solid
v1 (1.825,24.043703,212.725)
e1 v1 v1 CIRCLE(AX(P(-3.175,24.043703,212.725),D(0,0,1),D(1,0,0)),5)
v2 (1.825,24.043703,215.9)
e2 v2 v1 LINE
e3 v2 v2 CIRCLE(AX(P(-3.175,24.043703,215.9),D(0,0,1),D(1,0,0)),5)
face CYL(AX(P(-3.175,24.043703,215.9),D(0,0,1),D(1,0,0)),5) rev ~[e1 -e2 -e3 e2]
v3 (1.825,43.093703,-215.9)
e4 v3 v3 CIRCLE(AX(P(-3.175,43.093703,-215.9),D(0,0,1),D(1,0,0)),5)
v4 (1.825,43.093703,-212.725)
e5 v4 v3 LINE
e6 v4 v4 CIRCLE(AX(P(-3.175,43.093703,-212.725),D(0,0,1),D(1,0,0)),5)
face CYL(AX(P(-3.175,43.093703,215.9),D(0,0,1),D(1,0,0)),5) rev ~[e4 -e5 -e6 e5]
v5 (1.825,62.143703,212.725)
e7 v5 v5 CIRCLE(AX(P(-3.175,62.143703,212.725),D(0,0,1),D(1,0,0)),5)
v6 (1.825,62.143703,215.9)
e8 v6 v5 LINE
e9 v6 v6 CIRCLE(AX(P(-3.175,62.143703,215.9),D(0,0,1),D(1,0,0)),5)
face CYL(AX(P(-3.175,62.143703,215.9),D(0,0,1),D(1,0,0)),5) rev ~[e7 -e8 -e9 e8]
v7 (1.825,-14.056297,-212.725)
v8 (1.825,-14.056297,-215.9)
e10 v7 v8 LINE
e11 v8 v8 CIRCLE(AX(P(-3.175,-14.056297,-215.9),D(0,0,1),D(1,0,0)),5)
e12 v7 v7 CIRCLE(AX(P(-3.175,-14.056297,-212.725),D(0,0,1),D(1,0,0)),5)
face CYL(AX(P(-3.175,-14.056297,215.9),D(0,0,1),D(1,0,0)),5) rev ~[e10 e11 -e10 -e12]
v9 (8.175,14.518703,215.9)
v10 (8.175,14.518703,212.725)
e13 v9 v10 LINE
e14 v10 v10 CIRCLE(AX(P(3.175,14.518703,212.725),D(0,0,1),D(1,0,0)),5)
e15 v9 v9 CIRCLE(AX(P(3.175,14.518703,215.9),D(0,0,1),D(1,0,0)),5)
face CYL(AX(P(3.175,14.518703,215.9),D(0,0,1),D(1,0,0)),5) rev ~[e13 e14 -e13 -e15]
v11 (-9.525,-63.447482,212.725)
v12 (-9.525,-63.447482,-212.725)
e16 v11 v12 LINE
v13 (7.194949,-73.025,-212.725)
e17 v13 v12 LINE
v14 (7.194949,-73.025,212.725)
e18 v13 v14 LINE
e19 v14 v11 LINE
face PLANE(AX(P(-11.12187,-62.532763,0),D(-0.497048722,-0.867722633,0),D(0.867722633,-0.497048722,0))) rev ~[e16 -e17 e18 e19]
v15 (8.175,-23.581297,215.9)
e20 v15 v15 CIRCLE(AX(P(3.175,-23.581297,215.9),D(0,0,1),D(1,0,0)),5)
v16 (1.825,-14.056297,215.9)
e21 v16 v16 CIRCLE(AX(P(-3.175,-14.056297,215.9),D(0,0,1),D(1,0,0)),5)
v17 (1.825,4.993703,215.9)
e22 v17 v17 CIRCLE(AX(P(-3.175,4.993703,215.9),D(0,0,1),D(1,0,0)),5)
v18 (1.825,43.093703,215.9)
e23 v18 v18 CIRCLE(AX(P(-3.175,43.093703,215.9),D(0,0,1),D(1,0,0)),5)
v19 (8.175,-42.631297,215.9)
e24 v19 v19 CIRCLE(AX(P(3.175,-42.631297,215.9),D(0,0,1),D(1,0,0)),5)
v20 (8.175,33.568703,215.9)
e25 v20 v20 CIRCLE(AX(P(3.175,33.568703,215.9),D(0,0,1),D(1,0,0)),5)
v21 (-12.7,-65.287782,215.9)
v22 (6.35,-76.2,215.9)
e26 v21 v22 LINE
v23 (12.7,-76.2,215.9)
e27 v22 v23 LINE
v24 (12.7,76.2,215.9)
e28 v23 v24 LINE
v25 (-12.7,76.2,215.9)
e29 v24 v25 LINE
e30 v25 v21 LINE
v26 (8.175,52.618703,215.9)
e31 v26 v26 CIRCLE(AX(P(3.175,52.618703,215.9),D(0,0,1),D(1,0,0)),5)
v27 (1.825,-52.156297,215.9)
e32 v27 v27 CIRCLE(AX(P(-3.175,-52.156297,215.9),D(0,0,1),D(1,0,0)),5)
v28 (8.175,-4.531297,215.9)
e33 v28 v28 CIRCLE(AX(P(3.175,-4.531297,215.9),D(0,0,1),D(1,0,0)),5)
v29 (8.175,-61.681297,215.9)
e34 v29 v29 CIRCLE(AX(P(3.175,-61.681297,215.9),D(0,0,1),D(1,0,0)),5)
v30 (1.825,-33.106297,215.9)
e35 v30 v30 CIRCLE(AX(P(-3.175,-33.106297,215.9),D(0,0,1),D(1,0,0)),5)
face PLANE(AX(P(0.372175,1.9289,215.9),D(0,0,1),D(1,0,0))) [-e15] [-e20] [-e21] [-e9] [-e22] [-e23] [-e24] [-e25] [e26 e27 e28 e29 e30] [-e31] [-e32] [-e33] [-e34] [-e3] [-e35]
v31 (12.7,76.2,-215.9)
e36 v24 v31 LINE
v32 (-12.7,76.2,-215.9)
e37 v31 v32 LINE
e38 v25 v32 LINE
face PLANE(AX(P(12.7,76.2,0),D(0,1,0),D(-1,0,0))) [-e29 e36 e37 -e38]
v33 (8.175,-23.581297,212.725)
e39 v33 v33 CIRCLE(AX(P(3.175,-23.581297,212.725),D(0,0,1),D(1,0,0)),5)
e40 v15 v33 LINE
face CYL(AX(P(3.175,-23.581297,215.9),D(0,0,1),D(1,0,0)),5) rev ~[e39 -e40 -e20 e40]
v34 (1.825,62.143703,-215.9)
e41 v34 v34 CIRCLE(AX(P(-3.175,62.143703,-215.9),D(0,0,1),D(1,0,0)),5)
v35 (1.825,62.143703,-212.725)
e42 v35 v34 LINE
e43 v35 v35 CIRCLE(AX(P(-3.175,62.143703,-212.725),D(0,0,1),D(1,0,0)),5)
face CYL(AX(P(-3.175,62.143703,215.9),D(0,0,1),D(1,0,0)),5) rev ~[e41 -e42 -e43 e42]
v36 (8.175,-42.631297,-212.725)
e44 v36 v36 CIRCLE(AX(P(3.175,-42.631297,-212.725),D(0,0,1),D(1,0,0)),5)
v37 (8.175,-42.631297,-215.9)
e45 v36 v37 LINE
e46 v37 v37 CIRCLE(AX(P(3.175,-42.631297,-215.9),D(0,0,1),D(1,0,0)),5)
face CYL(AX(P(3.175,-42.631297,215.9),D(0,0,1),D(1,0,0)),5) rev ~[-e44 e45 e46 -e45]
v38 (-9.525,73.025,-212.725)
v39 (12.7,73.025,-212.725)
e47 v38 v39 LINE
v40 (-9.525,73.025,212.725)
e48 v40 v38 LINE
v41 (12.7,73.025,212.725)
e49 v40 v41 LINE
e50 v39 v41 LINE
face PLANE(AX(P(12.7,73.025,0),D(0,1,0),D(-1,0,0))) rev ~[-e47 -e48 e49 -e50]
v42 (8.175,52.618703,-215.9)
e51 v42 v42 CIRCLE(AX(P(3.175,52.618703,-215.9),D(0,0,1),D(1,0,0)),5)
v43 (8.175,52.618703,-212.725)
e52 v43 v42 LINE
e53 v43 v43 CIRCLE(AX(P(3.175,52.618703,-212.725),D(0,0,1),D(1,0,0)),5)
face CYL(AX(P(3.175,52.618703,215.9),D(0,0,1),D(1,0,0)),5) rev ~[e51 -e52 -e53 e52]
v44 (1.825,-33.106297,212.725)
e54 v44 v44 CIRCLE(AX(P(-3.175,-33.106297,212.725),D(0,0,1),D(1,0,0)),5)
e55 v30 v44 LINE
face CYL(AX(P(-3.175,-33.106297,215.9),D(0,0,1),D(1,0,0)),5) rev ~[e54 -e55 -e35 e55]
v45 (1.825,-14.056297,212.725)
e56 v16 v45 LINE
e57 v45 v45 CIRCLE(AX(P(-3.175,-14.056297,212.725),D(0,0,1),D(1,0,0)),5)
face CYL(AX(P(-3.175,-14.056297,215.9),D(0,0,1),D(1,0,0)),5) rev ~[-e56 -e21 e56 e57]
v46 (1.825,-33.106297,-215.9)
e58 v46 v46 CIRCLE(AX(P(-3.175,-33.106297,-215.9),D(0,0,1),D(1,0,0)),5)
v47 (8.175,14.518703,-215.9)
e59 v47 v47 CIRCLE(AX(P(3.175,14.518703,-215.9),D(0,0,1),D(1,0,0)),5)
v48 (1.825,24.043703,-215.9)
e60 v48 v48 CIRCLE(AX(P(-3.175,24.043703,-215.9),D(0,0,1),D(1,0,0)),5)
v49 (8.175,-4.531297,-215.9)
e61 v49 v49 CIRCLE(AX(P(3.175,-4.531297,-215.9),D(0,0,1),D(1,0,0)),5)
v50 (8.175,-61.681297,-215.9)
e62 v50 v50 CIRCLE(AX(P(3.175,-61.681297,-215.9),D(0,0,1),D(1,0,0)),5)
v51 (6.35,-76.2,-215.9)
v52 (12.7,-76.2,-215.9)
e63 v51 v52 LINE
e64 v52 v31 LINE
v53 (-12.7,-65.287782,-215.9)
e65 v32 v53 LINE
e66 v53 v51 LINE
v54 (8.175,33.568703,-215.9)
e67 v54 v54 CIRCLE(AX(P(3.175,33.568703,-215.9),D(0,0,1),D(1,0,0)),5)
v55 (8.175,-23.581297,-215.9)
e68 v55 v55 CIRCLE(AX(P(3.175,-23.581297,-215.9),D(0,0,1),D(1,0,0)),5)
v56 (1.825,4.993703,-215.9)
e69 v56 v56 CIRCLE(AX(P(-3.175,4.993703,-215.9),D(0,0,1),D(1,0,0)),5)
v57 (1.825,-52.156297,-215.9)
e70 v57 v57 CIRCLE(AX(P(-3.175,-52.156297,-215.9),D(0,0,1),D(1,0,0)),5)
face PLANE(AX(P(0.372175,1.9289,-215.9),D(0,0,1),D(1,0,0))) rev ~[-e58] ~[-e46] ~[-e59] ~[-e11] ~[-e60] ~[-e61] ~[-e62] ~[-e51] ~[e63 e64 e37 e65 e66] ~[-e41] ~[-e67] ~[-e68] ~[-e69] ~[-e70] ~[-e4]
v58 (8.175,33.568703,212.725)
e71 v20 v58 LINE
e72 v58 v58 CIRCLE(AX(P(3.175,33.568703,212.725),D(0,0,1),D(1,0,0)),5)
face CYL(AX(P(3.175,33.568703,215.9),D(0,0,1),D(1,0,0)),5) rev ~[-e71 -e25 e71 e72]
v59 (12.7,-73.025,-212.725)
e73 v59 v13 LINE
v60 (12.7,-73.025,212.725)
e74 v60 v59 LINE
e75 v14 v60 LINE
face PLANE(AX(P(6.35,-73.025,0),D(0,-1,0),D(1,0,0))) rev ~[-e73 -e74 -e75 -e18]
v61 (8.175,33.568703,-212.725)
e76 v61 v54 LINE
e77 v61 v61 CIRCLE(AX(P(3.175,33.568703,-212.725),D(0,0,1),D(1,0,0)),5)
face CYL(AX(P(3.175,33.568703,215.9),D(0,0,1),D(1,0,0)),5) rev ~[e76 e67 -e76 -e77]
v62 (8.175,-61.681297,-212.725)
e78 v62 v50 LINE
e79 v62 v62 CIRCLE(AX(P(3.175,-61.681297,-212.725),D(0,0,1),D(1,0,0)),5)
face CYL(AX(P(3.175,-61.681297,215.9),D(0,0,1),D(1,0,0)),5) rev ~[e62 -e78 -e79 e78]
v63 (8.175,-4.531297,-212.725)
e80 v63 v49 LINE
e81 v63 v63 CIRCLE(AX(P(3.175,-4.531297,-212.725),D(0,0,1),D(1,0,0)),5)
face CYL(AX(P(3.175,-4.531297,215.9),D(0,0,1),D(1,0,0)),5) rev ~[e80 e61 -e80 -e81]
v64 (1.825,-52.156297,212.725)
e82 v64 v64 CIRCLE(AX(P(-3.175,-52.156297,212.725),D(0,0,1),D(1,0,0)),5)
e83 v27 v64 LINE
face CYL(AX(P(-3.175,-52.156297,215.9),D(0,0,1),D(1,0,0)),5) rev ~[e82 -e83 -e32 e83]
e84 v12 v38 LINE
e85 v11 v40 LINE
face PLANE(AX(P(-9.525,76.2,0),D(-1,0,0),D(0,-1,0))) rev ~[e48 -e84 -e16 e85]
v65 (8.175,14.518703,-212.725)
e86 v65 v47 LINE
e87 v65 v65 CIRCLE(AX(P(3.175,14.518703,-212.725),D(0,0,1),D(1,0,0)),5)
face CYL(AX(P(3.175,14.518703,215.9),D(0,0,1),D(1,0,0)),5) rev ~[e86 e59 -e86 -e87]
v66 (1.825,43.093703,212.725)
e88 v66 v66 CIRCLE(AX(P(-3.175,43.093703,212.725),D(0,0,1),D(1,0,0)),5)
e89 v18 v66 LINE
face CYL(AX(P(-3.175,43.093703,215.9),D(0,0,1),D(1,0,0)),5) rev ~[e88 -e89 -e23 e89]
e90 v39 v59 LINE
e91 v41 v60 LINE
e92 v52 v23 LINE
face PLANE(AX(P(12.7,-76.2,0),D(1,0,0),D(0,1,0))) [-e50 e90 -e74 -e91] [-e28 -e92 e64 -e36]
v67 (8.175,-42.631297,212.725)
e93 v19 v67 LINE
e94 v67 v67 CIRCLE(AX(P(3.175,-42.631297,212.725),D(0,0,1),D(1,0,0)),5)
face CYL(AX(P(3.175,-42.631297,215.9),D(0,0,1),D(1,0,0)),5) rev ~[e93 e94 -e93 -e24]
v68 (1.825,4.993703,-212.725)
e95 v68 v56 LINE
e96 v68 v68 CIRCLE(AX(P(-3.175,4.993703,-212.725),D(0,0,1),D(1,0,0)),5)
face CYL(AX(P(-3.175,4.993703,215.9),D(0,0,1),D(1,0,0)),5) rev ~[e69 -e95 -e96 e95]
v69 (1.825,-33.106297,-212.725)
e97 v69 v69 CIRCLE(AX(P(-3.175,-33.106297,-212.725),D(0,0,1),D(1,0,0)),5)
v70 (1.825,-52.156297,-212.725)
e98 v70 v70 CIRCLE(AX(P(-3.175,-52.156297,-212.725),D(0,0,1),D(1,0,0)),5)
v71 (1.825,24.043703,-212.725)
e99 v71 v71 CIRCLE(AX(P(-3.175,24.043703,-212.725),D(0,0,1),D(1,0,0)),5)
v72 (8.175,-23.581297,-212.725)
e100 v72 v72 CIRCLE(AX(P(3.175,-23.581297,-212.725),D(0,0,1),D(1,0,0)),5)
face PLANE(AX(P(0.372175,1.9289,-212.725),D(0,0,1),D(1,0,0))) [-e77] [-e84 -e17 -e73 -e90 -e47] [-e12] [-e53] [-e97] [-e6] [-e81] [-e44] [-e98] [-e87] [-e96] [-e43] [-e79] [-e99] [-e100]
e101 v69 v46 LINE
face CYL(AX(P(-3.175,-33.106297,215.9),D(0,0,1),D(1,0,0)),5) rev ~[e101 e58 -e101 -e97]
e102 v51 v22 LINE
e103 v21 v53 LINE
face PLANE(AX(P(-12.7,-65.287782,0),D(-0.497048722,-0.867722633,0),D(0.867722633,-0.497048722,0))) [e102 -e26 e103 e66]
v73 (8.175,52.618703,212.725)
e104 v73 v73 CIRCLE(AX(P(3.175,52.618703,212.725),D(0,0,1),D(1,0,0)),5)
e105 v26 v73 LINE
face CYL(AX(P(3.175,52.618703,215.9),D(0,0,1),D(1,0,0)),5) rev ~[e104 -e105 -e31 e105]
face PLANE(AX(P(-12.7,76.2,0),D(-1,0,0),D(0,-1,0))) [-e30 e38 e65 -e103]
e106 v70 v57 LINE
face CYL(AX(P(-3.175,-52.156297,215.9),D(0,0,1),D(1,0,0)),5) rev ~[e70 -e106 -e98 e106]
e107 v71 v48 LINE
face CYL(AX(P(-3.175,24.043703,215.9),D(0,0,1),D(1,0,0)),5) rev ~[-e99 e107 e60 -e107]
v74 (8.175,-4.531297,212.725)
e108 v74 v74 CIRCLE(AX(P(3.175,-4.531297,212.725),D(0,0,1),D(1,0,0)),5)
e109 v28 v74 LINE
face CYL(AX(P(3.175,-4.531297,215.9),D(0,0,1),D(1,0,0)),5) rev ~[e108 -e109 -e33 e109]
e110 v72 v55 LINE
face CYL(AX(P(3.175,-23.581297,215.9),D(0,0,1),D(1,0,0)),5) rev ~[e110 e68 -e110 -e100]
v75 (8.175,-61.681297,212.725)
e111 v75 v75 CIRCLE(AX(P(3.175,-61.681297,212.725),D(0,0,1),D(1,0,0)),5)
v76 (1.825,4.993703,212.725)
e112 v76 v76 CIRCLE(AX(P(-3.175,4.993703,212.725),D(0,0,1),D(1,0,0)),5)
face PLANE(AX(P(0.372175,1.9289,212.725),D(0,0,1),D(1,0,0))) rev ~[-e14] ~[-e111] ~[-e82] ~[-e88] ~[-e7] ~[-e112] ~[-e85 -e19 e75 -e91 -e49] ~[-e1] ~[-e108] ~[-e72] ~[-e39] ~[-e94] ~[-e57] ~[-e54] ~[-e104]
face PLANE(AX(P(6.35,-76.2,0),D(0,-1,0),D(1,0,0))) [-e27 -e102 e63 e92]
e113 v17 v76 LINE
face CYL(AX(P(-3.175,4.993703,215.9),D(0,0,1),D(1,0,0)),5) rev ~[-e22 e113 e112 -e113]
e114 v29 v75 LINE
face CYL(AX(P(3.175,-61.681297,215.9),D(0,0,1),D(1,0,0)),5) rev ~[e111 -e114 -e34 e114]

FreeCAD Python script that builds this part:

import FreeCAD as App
import Part
import Sketcher
Q = App.Units.Quantity


def faces_at(feature, points):
    """Names of the faces that lie closest to the given points."""
    faces = feature.Shape.Faces
    near = lambda p: min(range(len(faces)), key=lambda i: faces[i].distToShape(Part.Vertex(*p))[0])
    return sorted({f"Face{near(p) + 1}" for p in points})


def add_polygon(sketch, points):
    """Adds a closed chain of lines whose ends are joined by coincident constraints."""
    first, n = sketch.GeometryCount, len(points)
    for a, b in zip(points, points[1:] + points[:1]):
        sketch.addGeometry(Part.LineSegment(App.Vector(*a, 0), App.Vector(*b, 0)), False)
    for i in range(n):
        sketch.addConstraint(Sketcher.Constraint("Coincident", first + i, 2, first + (i + 1) % n, 1))

doc = App.newDocument("Part")
body = doc.addObject("PartDesign::Body", "Body")

# Sketch on XY plane
sketch1 = doc.addObject("Sketcher::SketchObject", "Sketch")
body.addObject(sketch1)
sketch1.AttachmentSupport = (doc.XY_Plane, [""])
sketch1.MapMode = "FlatFace"
add_polygon(sketch1, [(-13, -65), (6, -76), (13, -76), (13, 76), (-13, 76)])  # lines 0-4
sketch1.addConstraint(Sketcher.Constraint("Horizontal", 1))
sketch1.addConstraint(Sketcher.Constraint("Vertical", 2))
sketch1.addConstraint(Sketcher.Constraint("Horizontal", 3))
sketch1.addConstraint(Sketcher.Constraint("Vertical", 4))
sketch1.addConstraint(Sketcher.Constraint("Symmetric", 1, 2, 3, 2, -1, 1))
sketch1.addConstraint(Sketcher.Constraint("DistanceX", 3, 2, 3, 1, Q("1 in")))
sketch1.addConstraint(Sketcher.Constraint("DistanceY", 2, 1, 2, 2, Q("6 in")))
sketch1.addConstraint(Sketcher.Constraint("DistanceX", 1, 1, 1, 2, Q("0.25 in")))
sketch1.addConstraint(Sketcher.Constraint("Distance", 0, 21.95402))
pad1 = doc.addObject("PartDesign::Pad", "Pad")
body.addObject(pad1)
pad1.Profile = sketch1
pad1.Length = Q("17 in")
pad1.Midplane = True
doc.recompute()

thickness = doc.addObject("PartDesign::Thickness", "Thickness")
body.addObject(thickness)
thickness.Base = (pad1, faces_at(pad1, [(12.7, 0, 0)]))
thickness.Value = Q("0.125 in")
thickness.Reversed = True
thickness.Join = "Intersection"

# Sketch on XY plane
sketch2 = doc.addObject("Sketcher::SketchObject", "Sketch001")
body.addObject(sketch2)
sketch2.AttachmentSupport = (doc.XY_Plane, [""])
sketch2.MapMode = "FlatFace"
sketch2.AttachmentOffset = App.Placement(App.Vector(0, 0, 8.5 * 25.4), App.Rotation())
sketch2.addGeometry(Part.Circle(App.Vector(3, -62, 0), App.Vector(0, 0, 1), 5), False)
sketch2.addGeometry(Part.Circle(App.Vector(-3, -52, 0), App.Vector(0, 0, 1), 5), False)
sketch2.addConstraint(Sketcher.Constraint("Equal", 0, 1))
sketch2.addConstraint(Sketcher.Constraint("Diameter", 0, 10.0))
sketch2.addConstraint(Sketcher.Constraint("DistanceX", 1, 3, 0, 3, Q("0.25 in")))
sketch2.addConstraint(Sketcher.Constraint("DistanceX", -1, 1, 0, 3, Q("0.125 in")))
sketch2.addConstraint(Sketcher.Constraint("DistanceY", 0, 3, 1, 3, Q("0.375 in")))
sketch2.addConstraint(Sketcher.Constraint("DistanceY", 0, 3, -1, 1, 61.681297))
pocket1 = doc.addObject("PartDesign::Pocket", "Pocket")
body.addObject(pocket1)
pocket1.Profile = sketch2
pocket1.Type = "ThroughAll"
doc.recompute()

linearpattern = doc.addObject("PartDesign::LinearPattern", "LinearPattern")
body.addObject(linearpattern)
linearpattern.Originals = [pocket1]
linearpattern.Direction = (doc.Y_Axis, [""])
linearpattern.Mode = "offset"
linearpattern.Offset = Q("0.75 in")
linearpattern.Occurrences = 7
body.Tip = linearpattern

doc.recompute()
